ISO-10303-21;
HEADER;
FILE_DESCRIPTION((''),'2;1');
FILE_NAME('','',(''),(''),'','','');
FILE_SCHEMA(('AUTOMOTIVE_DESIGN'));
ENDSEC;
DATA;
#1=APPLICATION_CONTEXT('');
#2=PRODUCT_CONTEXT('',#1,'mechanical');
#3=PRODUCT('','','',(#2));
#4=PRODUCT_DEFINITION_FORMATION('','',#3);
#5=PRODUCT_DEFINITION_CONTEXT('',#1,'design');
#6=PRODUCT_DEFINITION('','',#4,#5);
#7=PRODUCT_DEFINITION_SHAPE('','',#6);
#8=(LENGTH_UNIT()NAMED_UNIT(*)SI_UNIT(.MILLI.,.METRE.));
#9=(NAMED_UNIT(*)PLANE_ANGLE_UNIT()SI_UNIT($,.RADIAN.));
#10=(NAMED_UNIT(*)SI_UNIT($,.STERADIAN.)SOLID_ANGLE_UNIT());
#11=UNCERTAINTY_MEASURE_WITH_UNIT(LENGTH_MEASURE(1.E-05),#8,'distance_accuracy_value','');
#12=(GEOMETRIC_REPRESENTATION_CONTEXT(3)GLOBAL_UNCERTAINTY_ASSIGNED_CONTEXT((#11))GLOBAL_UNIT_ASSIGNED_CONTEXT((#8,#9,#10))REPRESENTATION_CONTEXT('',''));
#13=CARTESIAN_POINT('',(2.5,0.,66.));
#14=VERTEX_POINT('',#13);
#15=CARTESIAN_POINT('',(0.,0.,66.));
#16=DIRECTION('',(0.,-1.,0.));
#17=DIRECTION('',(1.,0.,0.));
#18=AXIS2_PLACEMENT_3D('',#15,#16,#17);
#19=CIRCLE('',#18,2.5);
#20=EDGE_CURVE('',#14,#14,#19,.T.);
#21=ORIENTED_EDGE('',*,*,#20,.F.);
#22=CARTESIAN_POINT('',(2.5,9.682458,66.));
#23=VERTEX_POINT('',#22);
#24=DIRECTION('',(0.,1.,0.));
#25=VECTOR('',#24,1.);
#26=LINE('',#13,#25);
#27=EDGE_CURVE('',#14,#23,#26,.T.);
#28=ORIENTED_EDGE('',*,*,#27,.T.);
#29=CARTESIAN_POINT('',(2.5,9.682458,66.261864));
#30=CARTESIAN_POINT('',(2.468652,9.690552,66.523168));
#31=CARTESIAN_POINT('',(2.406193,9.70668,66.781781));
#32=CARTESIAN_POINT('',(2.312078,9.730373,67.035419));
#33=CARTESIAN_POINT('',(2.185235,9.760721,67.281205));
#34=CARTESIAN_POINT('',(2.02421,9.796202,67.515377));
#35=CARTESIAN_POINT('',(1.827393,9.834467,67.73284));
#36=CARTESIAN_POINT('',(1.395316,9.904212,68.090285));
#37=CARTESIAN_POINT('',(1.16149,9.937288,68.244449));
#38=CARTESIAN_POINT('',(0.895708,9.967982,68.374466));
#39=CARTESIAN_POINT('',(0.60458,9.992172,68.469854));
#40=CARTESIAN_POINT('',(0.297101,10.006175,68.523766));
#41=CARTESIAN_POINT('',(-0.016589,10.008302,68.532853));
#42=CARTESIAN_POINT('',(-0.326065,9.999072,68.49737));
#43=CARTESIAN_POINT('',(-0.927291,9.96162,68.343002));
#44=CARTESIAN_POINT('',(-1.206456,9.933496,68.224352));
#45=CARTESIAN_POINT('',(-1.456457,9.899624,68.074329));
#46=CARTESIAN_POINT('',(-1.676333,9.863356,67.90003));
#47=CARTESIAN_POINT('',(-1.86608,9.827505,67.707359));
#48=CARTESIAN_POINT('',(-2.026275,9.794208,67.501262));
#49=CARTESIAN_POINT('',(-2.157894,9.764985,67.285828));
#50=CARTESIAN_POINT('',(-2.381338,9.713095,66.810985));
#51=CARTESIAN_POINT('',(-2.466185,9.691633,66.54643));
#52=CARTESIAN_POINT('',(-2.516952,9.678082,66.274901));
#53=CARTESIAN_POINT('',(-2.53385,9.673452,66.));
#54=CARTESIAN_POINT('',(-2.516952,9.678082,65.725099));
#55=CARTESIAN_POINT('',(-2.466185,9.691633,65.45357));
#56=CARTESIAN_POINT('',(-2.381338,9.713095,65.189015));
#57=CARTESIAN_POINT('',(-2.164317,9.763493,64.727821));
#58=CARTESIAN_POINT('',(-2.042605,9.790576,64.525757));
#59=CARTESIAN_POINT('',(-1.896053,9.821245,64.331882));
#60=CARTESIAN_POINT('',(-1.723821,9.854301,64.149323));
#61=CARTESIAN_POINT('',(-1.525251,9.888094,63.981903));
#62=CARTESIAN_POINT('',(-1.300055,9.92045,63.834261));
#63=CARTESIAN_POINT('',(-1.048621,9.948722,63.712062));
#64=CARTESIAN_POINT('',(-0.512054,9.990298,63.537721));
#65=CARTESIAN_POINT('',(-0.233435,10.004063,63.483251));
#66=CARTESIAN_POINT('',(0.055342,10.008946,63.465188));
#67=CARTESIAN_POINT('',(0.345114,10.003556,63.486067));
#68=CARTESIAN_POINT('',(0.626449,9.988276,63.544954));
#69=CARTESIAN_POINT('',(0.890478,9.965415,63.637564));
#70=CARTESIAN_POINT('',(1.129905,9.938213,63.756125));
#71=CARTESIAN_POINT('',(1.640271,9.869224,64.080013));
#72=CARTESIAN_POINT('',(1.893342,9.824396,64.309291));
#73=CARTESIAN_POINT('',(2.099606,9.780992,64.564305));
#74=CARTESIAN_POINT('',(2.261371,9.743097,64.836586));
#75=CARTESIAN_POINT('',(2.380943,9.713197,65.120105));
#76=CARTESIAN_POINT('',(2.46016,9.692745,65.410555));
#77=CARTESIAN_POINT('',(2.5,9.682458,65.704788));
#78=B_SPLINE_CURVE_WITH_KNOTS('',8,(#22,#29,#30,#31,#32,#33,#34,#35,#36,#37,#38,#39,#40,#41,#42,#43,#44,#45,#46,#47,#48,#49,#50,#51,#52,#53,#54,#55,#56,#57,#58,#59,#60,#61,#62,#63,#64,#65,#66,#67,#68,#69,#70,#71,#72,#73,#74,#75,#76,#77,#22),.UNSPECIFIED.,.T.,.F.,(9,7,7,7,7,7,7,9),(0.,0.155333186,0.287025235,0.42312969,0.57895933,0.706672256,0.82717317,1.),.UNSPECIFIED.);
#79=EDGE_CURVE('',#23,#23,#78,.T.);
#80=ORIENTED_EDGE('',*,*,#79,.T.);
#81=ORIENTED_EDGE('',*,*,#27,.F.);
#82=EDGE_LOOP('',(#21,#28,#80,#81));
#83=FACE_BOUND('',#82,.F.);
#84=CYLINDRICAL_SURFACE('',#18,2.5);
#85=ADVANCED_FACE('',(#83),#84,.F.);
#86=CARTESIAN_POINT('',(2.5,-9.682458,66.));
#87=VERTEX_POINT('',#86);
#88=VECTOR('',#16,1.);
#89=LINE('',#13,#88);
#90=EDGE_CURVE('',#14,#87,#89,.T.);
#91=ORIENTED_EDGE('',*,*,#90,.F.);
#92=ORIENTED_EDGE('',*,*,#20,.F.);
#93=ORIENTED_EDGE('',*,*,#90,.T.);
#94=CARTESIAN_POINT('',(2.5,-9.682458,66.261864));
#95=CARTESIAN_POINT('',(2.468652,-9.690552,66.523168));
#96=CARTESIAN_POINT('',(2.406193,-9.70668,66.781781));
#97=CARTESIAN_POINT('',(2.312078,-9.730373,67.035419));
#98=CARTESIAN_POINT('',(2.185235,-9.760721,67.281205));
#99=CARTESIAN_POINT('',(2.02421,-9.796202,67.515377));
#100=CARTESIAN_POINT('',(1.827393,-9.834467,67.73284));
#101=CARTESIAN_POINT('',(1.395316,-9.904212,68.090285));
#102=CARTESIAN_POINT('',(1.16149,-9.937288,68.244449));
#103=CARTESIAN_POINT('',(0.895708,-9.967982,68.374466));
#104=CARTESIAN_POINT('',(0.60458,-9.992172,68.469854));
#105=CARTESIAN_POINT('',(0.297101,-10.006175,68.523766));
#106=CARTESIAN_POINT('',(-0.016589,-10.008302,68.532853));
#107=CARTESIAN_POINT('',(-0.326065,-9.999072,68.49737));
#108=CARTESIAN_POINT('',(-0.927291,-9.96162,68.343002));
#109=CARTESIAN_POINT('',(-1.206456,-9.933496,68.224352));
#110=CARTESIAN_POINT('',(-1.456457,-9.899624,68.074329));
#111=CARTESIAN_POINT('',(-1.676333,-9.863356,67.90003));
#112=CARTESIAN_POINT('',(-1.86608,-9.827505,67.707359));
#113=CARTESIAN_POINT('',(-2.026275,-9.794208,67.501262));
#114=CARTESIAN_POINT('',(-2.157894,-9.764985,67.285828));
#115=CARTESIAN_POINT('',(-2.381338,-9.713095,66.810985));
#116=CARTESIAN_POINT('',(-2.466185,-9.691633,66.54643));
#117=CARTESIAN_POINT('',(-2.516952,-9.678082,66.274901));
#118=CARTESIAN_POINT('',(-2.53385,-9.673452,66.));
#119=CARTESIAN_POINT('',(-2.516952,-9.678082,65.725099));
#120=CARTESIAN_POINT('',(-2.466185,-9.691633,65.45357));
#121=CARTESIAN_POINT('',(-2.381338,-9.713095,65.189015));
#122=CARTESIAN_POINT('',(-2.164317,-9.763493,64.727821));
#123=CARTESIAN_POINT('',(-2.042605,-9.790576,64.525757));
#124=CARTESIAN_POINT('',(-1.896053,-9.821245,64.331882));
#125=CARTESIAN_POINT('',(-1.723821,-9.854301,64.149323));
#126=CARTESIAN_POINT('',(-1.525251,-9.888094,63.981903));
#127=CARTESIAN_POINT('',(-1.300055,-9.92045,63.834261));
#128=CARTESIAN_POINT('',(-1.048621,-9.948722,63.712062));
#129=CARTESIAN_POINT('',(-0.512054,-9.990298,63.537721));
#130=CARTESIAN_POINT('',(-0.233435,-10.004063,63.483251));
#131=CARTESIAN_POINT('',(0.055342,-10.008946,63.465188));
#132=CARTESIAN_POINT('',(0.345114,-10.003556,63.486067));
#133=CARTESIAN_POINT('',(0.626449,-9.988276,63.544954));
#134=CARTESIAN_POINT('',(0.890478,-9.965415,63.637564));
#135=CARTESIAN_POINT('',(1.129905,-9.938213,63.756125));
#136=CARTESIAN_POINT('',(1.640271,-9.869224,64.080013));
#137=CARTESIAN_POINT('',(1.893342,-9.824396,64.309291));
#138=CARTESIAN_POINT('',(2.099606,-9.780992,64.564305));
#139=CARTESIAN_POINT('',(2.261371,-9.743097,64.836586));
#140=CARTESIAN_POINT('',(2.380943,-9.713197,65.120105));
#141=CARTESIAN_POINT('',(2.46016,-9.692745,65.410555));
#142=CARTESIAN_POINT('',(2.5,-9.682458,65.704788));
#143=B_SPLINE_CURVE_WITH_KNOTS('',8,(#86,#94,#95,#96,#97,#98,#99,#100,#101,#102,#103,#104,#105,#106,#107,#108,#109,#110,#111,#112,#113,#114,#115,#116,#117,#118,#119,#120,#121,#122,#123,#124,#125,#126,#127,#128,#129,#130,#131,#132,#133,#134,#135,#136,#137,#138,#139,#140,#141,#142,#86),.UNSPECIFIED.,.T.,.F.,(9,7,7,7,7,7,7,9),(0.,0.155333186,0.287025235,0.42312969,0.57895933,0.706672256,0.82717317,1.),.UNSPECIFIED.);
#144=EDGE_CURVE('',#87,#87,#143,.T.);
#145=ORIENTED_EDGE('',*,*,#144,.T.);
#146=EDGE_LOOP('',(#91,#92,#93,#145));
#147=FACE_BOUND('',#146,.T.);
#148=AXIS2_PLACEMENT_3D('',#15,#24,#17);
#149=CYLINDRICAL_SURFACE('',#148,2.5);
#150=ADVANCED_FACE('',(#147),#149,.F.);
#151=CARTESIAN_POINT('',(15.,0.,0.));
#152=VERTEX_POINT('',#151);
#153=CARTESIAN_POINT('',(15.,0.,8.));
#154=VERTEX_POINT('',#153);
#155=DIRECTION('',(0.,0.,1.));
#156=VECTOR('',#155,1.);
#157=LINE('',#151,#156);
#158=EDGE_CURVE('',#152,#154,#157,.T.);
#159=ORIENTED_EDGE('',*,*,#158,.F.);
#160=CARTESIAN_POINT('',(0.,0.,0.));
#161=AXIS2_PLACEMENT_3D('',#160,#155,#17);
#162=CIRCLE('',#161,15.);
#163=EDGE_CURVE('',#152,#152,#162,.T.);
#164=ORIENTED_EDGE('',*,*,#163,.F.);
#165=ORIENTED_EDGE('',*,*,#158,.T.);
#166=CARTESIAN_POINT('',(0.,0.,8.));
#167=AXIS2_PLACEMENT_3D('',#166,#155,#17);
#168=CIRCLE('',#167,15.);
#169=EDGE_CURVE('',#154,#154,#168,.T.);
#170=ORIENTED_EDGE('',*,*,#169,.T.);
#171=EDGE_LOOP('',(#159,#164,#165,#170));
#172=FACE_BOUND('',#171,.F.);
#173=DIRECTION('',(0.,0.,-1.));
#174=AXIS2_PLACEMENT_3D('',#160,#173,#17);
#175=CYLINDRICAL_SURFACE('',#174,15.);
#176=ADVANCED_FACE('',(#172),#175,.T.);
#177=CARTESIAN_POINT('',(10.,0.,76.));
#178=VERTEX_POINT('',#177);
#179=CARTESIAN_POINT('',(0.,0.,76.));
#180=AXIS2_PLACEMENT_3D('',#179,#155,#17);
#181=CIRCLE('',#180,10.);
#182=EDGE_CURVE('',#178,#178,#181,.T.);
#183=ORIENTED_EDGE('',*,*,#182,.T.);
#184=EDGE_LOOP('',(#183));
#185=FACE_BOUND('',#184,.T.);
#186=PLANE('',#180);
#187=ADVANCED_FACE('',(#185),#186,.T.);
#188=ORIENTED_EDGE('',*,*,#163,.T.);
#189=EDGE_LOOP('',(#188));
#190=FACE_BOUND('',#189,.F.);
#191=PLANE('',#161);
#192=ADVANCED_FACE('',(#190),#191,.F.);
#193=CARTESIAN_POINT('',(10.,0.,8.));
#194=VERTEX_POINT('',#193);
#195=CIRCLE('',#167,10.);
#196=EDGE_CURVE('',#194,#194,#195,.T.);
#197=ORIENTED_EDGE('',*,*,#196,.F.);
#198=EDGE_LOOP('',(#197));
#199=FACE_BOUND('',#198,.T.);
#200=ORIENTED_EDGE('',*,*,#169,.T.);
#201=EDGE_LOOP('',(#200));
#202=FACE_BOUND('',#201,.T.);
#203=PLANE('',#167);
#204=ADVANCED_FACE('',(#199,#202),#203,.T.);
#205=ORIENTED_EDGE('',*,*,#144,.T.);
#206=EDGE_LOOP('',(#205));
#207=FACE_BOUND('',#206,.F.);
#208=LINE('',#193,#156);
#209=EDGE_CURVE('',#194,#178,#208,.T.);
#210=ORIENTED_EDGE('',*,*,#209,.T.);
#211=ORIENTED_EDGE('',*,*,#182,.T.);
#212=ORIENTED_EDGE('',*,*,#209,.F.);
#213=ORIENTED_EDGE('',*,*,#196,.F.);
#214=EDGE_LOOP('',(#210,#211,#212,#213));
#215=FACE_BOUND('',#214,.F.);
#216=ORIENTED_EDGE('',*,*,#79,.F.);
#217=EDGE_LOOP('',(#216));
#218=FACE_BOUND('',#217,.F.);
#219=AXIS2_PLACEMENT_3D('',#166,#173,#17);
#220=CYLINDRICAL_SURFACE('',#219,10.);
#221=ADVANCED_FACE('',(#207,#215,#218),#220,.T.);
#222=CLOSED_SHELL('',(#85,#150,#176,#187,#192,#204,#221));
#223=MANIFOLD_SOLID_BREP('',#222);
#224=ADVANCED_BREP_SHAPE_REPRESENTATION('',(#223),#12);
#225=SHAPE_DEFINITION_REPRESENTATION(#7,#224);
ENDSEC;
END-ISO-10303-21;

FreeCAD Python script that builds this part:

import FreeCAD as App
import Part
import Sketcher
Q = App.Units.Quantity

doc = App.newDocument("Part")
body = doc.addObject("PartDesign::Body", "Body")

sketch1 = body.newObject("Sketcher::SketchObject", "Sketch")
sketch1.AttachmentSupport = (doc.getObject("XY_Plane"), [""])
sketch1.MapMode = "FlatFace"
sketch1.addGeometry(Part.Circle(App.Vector(0, 0, 0), App.Vector(0, 0, 1), 15), False)
sketch1.addConstraint([
    Sketcher.Constraint("Coincident", 0, 3, -1, 1),
    Sketcher.Constraint("Diameter", 0, Q("30 mm")),
])
pad1 = body.newObject("PartDesign::Pad", "Pad")
pad1.Profile = sketch1
pad1.Length = 8

sketch2 = body.newObject("Sketcher::SketchObject", "Sketch001")
sketch2.AttachmentSupport = (doc.getObject("XY_Plane"), [""])
sketch2.MapMode = "FlatFace"
sketch2.AttachmentOffset = App.Placement(App.Vector(0, 0, 8), App.Rotation())
sketch2.addGeometry(Part.Circle(App.Vector(0, 0, 0), App.Vector(0, 0, 1), 10), False)
sketch2.addConstraint([
    Sketcher.Constraint("Coincident", 0, 3, -1, 1),
    Sketcher.Constraint("Diameter", 0, Q("20 mm")),
])
pad2 = body.newObject("PartDesign::Pad", "Pad001")
pad2.Profile = sketch2
pad2.Length = 68

sketch3 = body.newObject("Sketcher::SketchObject", "Sketch002")
sketch3.AttachmentSupport = (doc.getObject("XZ_Plane"), [""])
sketch3.MapMode = "FlatFace"
sketch3.addGeometry(Part.Circle(App.Vector(0, 66, 0), App.Vector(0, 0, 1), 2.5), False)
sketch3.addConstraint([
    Sketcher.Constraint("PointOnObject", 0, 3, -2),
    Sketcher.Constraint("Diameter", 0, Q("5 mm")),
    Sketcher.Constraint("DistanceY", -1, 1, 0, 3, Q("66 mm")),
])
pocket1 = body.newObject("PartDesign::Pocket", "Pocket")
pocket1.Profile = sketch3
pocket1.Length = 66.3708
pocket1.Midplane = True

doc.recompute()
